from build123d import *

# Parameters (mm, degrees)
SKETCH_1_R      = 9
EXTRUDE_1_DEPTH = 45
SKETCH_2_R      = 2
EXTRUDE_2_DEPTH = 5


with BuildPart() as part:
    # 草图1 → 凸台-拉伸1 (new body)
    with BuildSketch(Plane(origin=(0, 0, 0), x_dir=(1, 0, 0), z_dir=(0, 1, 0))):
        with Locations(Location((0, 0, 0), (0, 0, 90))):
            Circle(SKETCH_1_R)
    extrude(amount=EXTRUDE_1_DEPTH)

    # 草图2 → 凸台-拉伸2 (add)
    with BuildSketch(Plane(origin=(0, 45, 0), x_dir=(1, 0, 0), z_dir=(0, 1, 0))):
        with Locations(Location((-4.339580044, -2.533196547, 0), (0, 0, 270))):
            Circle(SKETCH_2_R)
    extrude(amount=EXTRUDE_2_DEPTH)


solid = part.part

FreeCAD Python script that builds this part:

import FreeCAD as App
import Part
import Sketcher

V = App.Vector
Q = App.Units.Quantity

doc = App.newDocument("Part")
params = doc.addObject("Spreadsheet::Sheet", "Params")
for row, (alias, value) in enumerate([
    ("sketch1_diameter", "18 mm"),
    ("pad1_length", "45 mm"),
    ("sketch2_diameter", "4 mm"),
    ("pad2_length", "5 mm"),
], start=1):
    params.set(f"A{row}", alias)
    params.set(f"B{row}", "=" + value)
    params.setAlias(f"B{row}", alias)

body = doc.addObject("PartDesign::Body", "Body")

# Sketch on XZ plane
sketch1 = body.newObject("Sketcher::SketchObject", "Sketch")
sketch1.AttachmentSupport = (doc.getObject("XZ_Plane"), [""])
sketch1.MapMode = "FlatFace"
sketch1.addGeometry(Part.Circle(V(0, 0, 0), V(0, 0, 1), 9), False)
sketch1.addConstraint([
    Sketcher.Constraint("Coincident", 0, 3, -1, 1),
    Sketcher.Constraint("Diameter", 0, Q("18 mm")),
])
sketch1.setExpression("Constraints[1]", "Params.sketch1_diameter")
pad1 = body.newObject("PartDesign::Pad", "Pad")
pad1.Profile = sketch1
pad1.setExpression("Length", "Params.pad1_length")
pad1.Reversed = True

# Sketch on XZ plane
sketch2 = body.newObject("Sketcher::SketchObject", "Sketch001")
sketch2.AttachmentSupport = (doc.getObject("XZ_Plane"), [""])
sketch2.MapMode = "FlatFace"
sketch2.AttachmentOffset = App.Placement(V(0, 0, -45), App.Rotation())
sketch2.addGeometry(Part.Circle(V(-4.3, 2.5, 0), V(0, 0, 1), 2), False)
sketch2.addConstraint([
    Sketcher.Constraint("Diameter", 0, Q("4 mm")),
    Sketcher.Constraint("DistanceX", 0, 3, -1, 1, Q("4.33958 mm")),
    Sketcher.Constraint("DistanceY", -1, 1, 0, 3, Q("2.533197 mm")),
])
sketch2.setExpression("Constraints[0]", "Params.sketch2_diameter")
pad2 = body.newObject("PartDesign::Pad", "Pad001")
pad2.Profile = sketch2
pad2.setExpression("Length", "Params.pad2_length")
pad2.Reversed = True

doc.recompute()
